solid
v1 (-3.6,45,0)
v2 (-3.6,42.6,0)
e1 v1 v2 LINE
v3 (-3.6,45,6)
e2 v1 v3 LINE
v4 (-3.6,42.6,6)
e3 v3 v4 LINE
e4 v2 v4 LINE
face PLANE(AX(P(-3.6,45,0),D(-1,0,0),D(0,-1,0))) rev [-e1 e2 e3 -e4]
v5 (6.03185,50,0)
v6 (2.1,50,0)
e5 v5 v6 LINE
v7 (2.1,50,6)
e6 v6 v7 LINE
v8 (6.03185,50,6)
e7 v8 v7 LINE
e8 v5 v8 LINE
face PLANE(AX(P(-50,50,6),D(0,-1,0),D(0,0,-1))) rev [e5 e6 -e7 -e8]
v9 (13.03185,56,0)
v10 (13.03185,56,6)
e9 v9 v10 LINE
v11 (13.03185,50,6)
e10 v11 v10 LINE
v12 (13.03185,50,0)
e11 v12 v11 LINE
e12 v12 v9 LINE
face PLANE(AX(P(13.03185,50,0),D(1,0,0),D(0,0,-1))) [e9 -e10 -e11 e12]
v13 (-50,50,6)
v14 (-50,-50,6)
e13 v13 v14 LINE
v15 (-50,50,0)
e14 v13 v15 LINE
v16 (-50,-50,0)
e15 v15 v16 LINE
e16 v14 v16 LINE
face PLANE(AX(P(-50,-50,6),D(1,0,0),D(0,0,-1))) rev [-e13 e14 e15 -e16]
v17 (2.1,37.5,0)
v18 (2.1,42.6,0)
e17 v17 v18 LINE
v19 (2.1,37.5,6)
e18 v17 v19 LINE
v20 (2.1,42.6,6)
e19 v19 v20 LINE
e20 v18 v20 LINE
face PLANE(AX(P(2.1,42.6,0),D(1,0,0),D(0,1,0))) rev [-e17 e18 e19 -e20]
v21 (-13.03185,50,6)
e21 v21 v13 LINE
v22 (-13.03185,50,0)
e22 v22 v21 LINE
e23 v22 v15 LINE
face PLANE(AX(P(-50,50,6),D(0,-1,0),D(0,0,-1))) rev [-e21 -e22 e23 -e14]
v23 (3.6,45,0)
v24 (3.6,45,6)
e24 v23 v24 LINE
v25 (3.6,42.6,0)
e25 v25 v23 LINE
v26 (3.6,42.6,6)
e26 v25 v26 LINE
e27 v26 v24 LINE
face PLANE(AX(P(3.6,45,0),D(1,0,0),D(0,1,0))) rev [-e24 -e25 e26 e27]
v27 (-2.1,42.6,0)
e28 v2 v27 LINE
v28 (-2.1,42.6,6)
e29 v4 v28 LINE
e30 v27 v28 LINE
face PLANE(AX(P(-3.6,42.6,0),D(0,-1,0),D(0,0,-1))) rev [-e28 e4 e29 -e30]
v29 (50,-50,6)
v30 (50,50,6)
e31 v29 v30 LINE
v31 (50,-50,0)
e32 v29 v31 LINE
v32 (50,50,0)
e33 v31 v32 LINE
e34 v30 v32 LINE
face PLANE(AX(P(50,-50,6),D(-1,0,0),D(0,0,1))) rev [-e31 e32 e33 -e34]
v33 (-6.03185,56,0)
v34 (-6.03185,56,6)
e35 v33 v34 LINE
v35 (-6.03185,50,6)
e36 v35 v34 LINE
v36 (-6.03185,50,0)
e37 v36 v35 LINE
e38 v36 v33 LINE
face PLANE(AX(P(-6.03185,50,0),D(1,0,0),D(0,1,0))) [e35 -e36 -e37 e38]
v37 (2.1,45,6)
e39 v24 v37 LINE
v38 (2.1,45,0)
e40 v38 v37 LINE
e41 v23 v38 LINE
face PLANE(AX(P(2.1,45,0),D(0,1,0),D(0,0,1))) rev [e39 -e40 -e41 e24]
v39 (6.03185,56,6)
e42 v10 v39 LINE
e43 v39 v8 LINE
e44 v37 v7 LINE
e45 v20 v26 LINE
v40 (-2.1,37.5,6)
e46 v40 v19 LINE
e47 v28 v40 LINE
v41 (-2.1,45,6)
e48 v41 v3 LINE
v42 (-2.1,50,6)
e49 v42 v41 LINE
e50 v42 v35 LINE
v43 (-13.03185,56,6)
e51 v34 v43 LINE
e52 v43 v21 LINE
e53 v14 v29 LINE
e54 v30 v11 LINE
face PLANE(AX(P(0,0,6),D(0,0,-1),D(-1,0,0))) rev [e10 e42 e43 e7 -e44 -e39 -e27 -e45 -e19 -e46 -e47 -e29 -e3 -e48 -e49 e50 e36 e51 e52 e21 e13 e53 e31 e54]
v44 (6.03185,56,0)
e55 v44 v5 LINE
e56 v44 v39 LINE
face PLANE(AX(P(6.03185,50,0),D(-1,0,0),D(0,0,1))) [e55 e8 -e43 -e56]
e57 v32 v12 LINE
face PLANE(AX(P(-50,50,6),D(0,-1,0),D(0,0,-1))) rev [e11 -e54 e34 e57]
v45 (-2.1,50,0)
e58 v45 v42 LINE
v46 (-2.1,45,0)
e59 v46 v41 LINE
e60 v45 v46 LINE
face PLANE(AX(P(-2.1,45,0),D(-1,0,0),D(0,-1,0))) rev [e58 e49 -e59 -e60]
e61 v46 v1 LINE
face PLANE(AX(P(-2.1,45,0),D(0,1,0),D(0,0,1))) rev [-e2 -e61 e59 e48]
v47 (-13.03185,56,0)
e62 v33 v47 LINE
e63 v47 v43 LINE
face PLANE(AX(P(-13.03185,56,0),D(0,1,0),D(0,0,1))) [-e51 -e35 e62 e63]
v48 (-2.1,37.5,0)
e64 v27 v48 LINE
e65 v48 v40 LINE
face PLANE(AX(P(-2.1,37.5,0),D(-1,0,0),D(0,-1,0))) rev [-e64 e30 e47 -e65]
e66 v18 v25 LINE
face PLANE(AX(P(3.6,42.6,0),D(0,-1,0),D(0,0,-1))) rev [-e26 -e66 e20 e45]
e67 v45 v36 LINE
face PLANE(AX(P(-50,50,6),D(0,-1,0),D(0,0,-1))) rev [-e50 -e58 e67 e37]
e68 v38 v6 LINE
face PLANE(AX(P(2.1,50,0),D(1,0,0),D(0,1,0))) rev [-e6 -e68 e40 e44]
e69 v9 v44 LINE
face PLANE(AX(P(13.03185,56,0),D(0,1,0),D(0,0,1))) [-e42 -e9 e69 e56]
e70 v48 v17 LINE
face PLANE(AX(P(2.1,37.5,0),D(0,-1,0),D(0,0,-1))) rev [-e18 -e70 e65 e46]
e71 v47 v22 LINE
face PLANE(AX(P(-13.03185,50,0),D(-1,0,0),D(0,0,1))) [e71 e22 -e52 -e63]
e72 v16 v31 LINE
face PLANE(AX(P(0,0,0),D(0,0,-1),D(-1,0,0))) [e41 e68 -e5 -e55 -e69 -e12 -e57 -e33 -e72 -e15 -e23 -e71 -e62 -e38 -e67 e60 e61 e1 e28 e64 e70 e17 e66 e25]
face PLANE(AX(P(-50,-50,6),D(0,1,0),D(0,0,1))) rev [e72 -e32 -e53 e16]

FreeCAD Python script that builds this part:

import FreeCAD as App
import Part
import Sketcher
from FreeCAD import Vector


def add_polygon(sketch, points):
    """Adds a closed chain of lines whose ends are joined by coincident constraints."""
    first, n = sketch.GeometryCount, len(points)
    for a, b in zip(points, points[1:] + points[:1]):
        sketch.addGeometry(Part.LineSegment(App.Vector(*a, 0), App.Vector(*b, 0)), False)
    for i in range(n):
        sketch.addConstraint(Sketcher.Constraint("Coincident", first + i, 2, first + (i + 1) % n, 1))

doc = App.newDocument("Part")
body = doc.addObject("PartDesign::Body", "Body")

# Sketch on XY plane
sketch1 = body.newObject("Sketcher::SketchObject", "Sketch")
sketch1.AttachmentSupport = (doc.getObject("XY_Plane"), [""])
sketch1.MapMode = "FlatFace"
add_polygon(sketch1, [(-50, 50), (-50, -50), (50, -50), (50, 50)])  # lines 0-3
sketch1.addConstraint([
    Sketcher.Constraint("Vertical", 0),
    Sketcher.Constraint("Horizontal", 1),
    Sketcher.Constraint("Vertical", 2),
    Sketcher.Constraint("Horizontal", 3),
    Sketcher.Constraint("Symmetric", 0, 2, 2, 2, -1, 1),
    Sketcher.Constraint("Equal", 3, 0),
    Sketcher.Constraint("DistanceX", 1, 1, 1, 2, 100.0),
])
pad1 = body.newObject("PartDesign::Pad", "Pad")
pad1.Profile = sketch1
pad1.Length = 6

# Sketch on XY plane
sketch2 = body.newObject("Sketcher::SketchObject", "Sketch001")
sketch2.AttachmentSupport = (doc.getObject("XY_Plane"), [""])
sketch2.MapMode = "FlatFace"
sketch2.AttachmentOffset = App.Placement(Vector(0, 0, 6), App.Rotation())
add_polygon(sketch2, [(-13, 56), (-13, 50), (-6, 50), (-6, 56)])  # lines 0-3
add_polygon(sketch2, [(6, 56), (6, 50), (13, 50), (13, 56)])  # lines 4-7
sketch2.addConstraint([
    Sketcher.Constraint("Vertical", 0),
    Sketcher.Constraint("Horizontal", 1),
    Sketcher.Constraint("Vertical", 2),
    Sketcher.Constraint("Horizontal", 3),
    Sketcher.Constraint("Vertical", 4),
    Sketcher.Constraint("Horizontal", 5),
    Sketcher.Constraint("Vertical", 6),
    Sketcher.Constraint("Horizontal", 7),
    Sketcher.Constraint("Symmetric", 1, 2, 4, 2, -2),
    Sketcher.Constraint("Symmetric", 3, 2, 6, 2, -2),
    Sketcher.Constraint("DistanceX", 1, 1, 1, 2, 7.0),
    Sketcher.Constraint("DistanceY", 0, 2, 0, 1, 6.0),
    Sketcher.Constraint("DistanceY", -1, 1, 0, 2, 50.0),
    Sketcher.Constraint("DistanceX", 1, 2, 4, 2, 12.0637),
])
pad2 = body.newObject("PartDesign::Pad", "Pad001")
pad2.Profile = sketch2
pad2.Length = 6
pad2.Reversed = True

# Sketch on XY plane
sketch3 = body.newObject("Sketcher::SketchObject", "Sketch002")
sketch3.AttachmentSupport = (doc.getObject("XY_Plane"), [""])
sketch3.MapMode = "FlatFace"
sketch3.AttachmentOffset = App.Placement(Vector(0, 0, 6), App.Rotation())
add_polygon(sketch3, [(-2.1, 45), (-3.6, 45), (-3.6, 42.6), (-2.1, 42.6), (-2.1, 37.5), (2.1, 37.5), (2.1, 42.6), (3.6, 42.6), (3.6, 45), (2.1, 45), (2.1, 50), (-2.1, 50)])  # lines 0-11
sketch3.addConstraint([
    Sketcher.Constraint("Horizontal", 0),
    Sketcher.Constraint("Vertical", 1),
    Sketcher.Constraint("Horizontal", 2),
    Sketcher.Constraint("Vertical", 3),
    Sketcher.Constraint("Horizontal", 4),
    Sketcher.Constraint("Vertical", 5),
    Sketcher.Constraint("Horizontal", 6),
    Sketcher.Constraint("Vertical", 7),
    Sketcher.Constraint("Horizontal", 8),
    Sketcher.Constraint("Vertical", 9),
    Sketcher.Constraint("Horizontal", 10),
    Sketcher.Constraint("Vertical", 11),
    Sketcher.Constraint("Symmetric", 2, 2, 5, 2, -2),
    Sketcher.Constraint("Symmetric", 0, 2, 7, 2, -2),
    Sketcher.Constraint("Vertical", 5, 2, 8, 2),
    Sketcher.Constraint("Vertical", 3, 2, 10, 2),
    Sketcher.Constraint("DistanceY", 9, 1, 9, 2, 5.0),
    Sketcher.Constraint("DistanceX", 0, 2, 0, 1, 1.5),
    Sketcher.Constraint("DistanceX", 4, 1, 4, 2, 4.2),
    Sketcher.Constraint("DistanceY", 1, 2, 1, 1, 2.4),
    Sketcher.Constraint("DistanceY", 3, 2, 3, 1, 5.1),
    Sketcher.Constraint("DistanceY", -1, 1, 0, 2, 45.0),
])
pocket1 = body.newObject("PartDesign::Pocket", "Pocket")
pocket1.Profile = sketch3
pocket1.Type = "ThroughAll"

doc.recompute()
